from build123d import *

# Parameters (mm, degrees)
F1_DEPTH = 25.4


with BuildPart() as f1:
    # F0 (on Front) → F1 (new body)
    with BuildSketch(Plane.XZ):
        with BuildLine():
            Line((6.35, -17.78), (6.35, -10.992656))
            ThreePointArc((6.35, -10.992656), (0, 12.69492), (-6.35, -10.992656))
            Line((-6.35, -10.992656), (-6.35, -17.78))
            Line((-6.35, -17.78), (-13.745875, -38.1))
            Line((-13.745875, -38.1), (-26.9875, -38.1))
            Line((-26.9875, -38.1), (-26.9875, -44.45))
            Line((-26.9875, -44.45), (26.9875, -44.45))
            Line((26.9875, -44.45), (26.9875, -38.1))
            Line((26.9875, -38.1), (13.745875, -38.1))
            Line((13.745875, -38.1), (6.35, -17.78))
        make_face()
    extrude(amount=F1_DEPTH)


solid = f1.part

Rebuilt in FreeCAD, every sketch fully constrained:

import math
import FreeCAD as App
import Part
import Sketcher

V = App.Vector
Q = App.Units.Quantity

doc = App.newDocument("Part")
body = doc.addObject("PartDesign::Body", "Body")

# Sketch on XZ plane
sketch1 = body.newObject("Sketcher::SketchObject", "Sketch")
sketch1.AttachmentSupport = (doc.getObject("XZ_Plane"), [""])
sketch1.MapMode = "FlatFace"
sketch1.addGeometry(Part.LineSegment(V(6, -18, 0), V(6, -11, 0)), False)
sketch1.addGeometry(Part.ArcOfCircle(Part.Circle(V(0, 0, 0), V(0, 0, 1), 13), math.radians(-60), math.radians(240)), False)
sketch1.addGeometry(Part.LineSegment(V(-6, -11, 0), V(-6, -18, 0)), False)
sketch1.addGeometry(Part.LineSegment(V(-6, -18, 0), V(-14, -38, 0)), False)
sketch1.addGeometry(Part.LineSegment(V(-14, -38, 0), V(-27, -38, 0)), False)
sketch1.addGeometry(Part.LineSegment(V(-27, -38, 0), V(-27, -44, 0)), False)
sketch1.addGeometry(Part.LineSegment(V(-27, -44, 0), V(27, -44, 0)), False)
sketch1.addGeometry(Part.LineSegment(V(27, -44, 0), V(27, -38, 0)), False)
sketch1.addGeometry(Part.LineSegment(V(27, -38, 0), V(14, -38, 0)), False)
sketch1.addGeometry(Part.LineSegment(V(14, -38, 0), V(6, -18, 0)), False)
sketch1.addConstraint(Sketcher.Constraint("Coincident", 0, 2, 1, 1))
sketch1.addConstraint(Sketcher.Constraint("Coincident", 1, 2, 2, 1))
sketch1.addConstraint(Sketcher.Constraint("Coincident", 2, 2, 3, 1))
sketch1.addConstraint(Sketcher.Constraint("Coincident", 3, 2, 4, 1))
sketch1.addConstraint(Sketcher.Constraint("Coincident", 4, 2, 5, 1))
sketch1.addConstraint(Sketcher.Constraint("Coincident", 5, 2, 6, 1))
sketch1.addConstraint(Sketcher.Constraint("Coincident", 6, 2, 7, 1))
sketch1.addConstraint(Sketcher.Constraint("Coincident", 7, 2, 8, 1))
sketch1.addConstraint(Sketcher.Constraint("Coincident", 8, 2, 9, 1))
sketch1.addConstraint(Sketcher.Constraint("Coincident", 9, 2, 0, 1))
sketch1.addConstraint(Sketcher.Constraint("Vertical", 0))
sketch1.addConstraint(Sketcher.Constraint("Vertical", 2))
sketch1.addConstraint(Sketcher.Constraint("Horizontal", 4))
sketch1.addConstraint(Sketcher.Constraint("Vertical", 5))
sketch1.addConstraint(Sketcher.Constraint("Horizontal", 6))
sketch1.addConstraint(Sketcher.Constraint("Vertical", 7))
sketch1.addConstraint(Sketcher.Constraint("Horizontal", 8))
sketch1.addConstraint(Sketcher.Constraint("Coincident", 1, 3, -1, 1))
sketch1.addConstraint(Sketcher.Constraint("Symmetric", 4, 2, 7, 2, -2))
sketch1.addConstraint(Sketcher.Constraint("Symmetric", 2, 2, 9, 2, -2))
sketch1.addConstraint(Sketcher.Constraint("Equal", 4, 8))
sketch1.addConstraint(Sketcher.Constraint("Angle", 3, Q("-110 deg")))
sketch1.addConstraint(Sketcher.Constraint("DistanceY", 5, 2, 5, 1, Q("0.25 in")))
sketch1.addConstraint(Sketcher.Constraint("DistanceY", 2, 2, -1, 1, Q("0.7 in")))
sketch1.addConstraint(Sketcher.Constraint("DistanceY", 3, 2, -1, 1, Q("1.5 in")))
sketch1.addConstraint(Sketcher.Constraint("Radius", 1, Q("0.4998 in")))
sketch1.addConstraint(Sketcher.Constraint("DistanceX", 1, 2, 0, 2, Q("0.5 in")))
sketch1.addConstraint(Sketcher.Constraint("DistanceX", 6, 1, 6, 2, Q("2.125 in")))
pad1 = body.newObject("PartDesign::Pad", "Pad")
pad1.Profile = sketch1
pad1.Length = Q("1 in")

doc.recompute()
